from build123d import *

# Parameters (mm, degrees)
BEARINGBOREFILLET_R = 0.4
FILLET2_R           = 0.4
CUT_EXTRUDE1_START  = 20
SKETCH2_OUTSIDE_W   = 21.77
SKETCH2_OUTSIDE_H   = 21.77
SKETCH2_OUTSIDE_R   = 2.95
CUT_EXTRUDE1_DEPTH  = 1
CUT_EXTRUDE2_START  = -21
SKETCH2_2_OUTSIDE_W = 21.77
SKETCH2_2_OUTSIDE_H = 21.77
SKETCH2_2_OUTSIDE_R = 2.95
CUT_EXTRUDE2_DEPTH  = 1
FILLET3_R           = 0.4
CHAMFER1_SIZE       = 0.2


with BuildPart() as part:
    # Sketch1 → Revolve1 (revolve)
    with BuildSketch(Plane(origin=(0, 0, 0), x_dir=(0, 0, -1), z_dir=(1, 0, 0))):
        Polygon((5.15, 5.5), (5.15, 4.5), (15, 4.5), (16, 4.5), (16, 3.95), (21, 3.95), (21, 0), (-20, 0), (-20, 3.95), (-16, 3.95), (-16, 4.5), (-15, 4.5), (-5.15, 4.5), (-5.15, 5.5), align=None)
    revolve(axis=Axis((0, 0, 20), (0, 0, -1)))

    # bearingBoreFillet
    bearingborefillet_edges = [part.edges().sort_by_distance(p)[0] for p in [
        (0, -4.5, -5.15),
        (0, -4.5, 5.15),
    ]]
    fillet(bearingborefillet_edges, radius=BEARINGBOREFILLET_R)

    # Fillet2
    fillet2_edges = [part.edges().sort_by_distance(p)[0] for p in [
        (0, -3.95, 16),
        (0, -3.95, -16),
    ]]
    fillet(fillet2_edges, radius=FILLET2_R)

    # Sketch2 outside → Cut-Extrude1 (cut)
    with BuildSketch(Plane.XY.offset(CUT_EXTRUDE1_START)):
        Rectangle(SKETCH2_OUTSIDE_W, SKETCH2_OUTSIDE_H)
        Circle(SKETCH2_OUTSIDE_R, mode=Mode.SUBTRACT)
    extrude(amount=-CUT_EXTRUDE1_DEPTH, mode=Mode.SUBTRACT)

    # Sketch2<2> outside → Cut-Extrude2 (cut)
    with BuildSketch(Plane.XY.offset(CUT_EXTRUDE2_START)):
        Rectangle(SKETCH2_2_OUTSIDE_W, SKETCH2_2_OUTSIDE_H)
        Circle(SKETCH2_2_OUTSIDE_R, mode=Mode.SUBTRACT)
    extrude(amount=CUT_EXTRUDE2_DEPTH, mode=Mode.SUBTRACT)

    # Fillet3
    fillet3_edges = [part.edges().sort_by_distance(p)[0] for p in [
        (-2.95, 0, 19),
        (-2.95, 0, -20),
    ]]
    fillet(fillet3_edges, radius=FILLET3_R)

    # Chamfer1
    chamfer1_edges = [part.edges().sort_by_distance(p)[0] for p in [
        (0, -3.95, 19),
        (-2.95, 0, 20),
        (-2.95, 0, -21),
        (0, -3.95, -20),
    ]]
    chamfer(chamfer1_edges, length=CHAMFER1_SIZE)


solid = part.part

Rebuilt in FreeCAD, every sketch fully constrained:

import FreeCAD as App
import Part
import Sketcher
from FreeCAD import Vector


def edges_at(feature, points):
    """Names of the edges that pass closest to the given points."""
    edges = feature.Shape.Edges
    near = lambda p: min(range(len(edges)), key=lambda i: edges[i].distToShape(Part.Vertex(*p))[0])
    return sorted({f"Edge{near(p) + 1}" for p in points})

doc = App.newDocument("Part")
body = doc.addObject("PartDesign::Body", "Body")

# Sketch on YZ plane
sketch1 = doc.addObject("Sketcher::SketchObject", "Sketch")
body.addObject(sketch1)
sketch1.AttachmentSupport = (doc.YZ_Plane, [""])
sketch1.MapMode = "FlatFace"
sketch1.addGeometry(Part.LineSegment(Vector(4.5, -5.2, 0), Vector(5.5, -5.2, 0)), False)
sketch1.addGeometry(Part.LineSegment(Vector(5.5, -5.2, 0), Vector(5.5, 5.2, 0)), False)
sketch1.addGeometry(Part.LineSegment(Vector(5.5, 5.2, 0), Vector(4.5, 5.2, 0)), False)
sketch1.addGeometry(Part.LineSegment(Vector(4.5, 5.2, 0), Vector(4.5, 16, 0)), False)
sketch1.addGeometry(Part.LineSegment(Vector(4.5, 16, 0), Vector(4, 16, 0)), False)
sketch1.addGeometry(Part.LineSegment(Vector(4, 16, 0), Vector(4, 20, 0)), False)
sketch1.addGeometry(Part.LineSegment(Vector(4, 20, 0), Vector(0, 20, 0)), False)
sketch1.addGeometry(Part.LineSegment(Vector(0, 20, 0), Vector(0, -21, 0)), False)
sketch1.addGeometry(Part.LineSegment(Vector(0, -21, 0), Vector(4, -21, 0)), False)
sketch1.addGeometry(Part.LineSegment(Vector(4, -21, 0), Vector(4, -16, 0)), False)
sketch1.addGeometry(Part.LineSegment(Vector(4, -16, 0), Vector(4.5, -16, 0)), False)
sketch1.addGeometry(Part.LineSegment(Vector(4.5, -16, 0), Vector(4.5, -5.2, 0)), False)
sketch1.addConstraint(Sketcher.Constraint("Coincident", 0, 2, 1, 1))
sketch1.addConstraint(Sketcher.Constraint("Coincident", 1, 2, 2, 1))
sketch1.addConstraint(Sketcher.Constraint("Coincident", 2, 2, 3, 1))
sketch1.addConstraint(Sketcher.Constraint("Coincident", 3, 2, 4, 1))
sketch1.addConstraint(Sketcher.Constraint("Coincident", 4, 2, 5, 1))
sketch1.addConstraint(Sketcher.Constraint("Coincident", 5, 2, 6, 1))
sketch1.addConstraint(Sketcher.Constraint("Coincident", 6, 2, 7, 1))
sketch1.addConstraint(Sketcher.Constraint("Coincident", 7, 2, 8, 1))
sketch1.addConstraint(Sketcher.Constraint("Coincident", 8, 2, 9, 1))
sketch1.addConstraint(Sketcher.Constraint("Coincident", 9, 2, 10, 1))
sketch1.addConstraint(Sketcher.Constraint("Coincident", 10, 2, 11, 1))
sketch1.addConstraint(Sketcher.Constraint("Coincident", 11, 2, 0, 1))
sketch1.addConstraint(Sketcher.Constraint("Horizontal", 0))
sketch1.addConstraint(Sketcher.Constraint("Vertical", 1))
sketch1.addConstraint(Sketcher.Constraint("Horizontal", 2))
sketch1.addConstraint(Sketcher.Constraint("Vertical", 3))
sketch1.addConstraint(Sketcher.Constraint("Horizontal", 4))
sketch1.addConstraint(Sketcher.Constraint("Vertical", 5))
sketch1.addConstraint(Sketcher.Constraint("Horizontal", 6))
sketch1.addConstraint(Sketcher.Constraint("Vertical", 7))
sketch1.addConstraint(Sketcher.Constraint("Horizontal", 8))
sketch1.addConstraint(Sketcher.Constraint("Vertical", 9))
sketch1.addConstraint(Sketcher.Constraint("Horizontal", 10))
sketch1.addConstraint(Sketcher.Constraint("Vertical", 11))
sketch1.addConstraint(Sketcher.Constraint("Symmetric", 4, 2, 9, 2, -1))
sketch1.addConstraint(Sketcher.Constraint("Symmetric", 2, 2, 11, 2, -1))
sketch1.addConstraint(Sketcher.Constraint("PointOnObject", 6, 2, -2))
sketch1.addConstraint(Sketcher.Constraint("DistanceX", 0, 1, 0, 2, 1.0))
sketch1.addConstraint(Sketcher.Constraint("DistanceY", 5, 1, 5, 2, 4.0))
sketch1.addConstraint(Sketcher.Constraint("DistanceY", 7, 2, 7, 1, 41.0))
sketch1.addConstraint(Sketcher.Constraint("DistanceY", 9, 1, 9, 2, 5.0))
sketch1.addConstraint(Sketcher.Constraint("DistanceY", 1, 1, 1, 2, 10.3))
sketch1.addConstraint(Sketcher.Constraint("DistanceX", 4, 2, 4, 1, 0.55))
sketch1.addConstraint(Sketcher.Constraint("DistanceX", 6, 2, 6, 1, 3.95))
revolution = doc.addObject("PartDesign::Revolution", "Revolution")
body.addObject(revolution)
revolution.Profile = sketch1
revolution.ReferenceAxis = (sketch1, ["V_Axis"])
revolution.Angle = 360
doc.recompute()

fillet = doc.addObject("PartDesign::Fillet", "Fillet")
body.addObject(fillet)
fillet.Base = (revolution, edges_at(revolution, [(0, -4.5, -5.15), (0, -4.5, 5.15)]))
fillet.Radius = 0.4
doc.recompute()

fillet2 = doc.addObject("PartDesign::Fillet", "Fillet001")
body.addObject(fillet2)
fillet2.Base = (fillet, edges_at(fillet, [(0, -3.95, 16), (0, -3.95, -16)]))
fillet2.Radius = 0.4

# Sketch on XY plane
sketch2 = doc.addObject("Sketcher::SketchObject", "Sketch001")
body.addObject(sketch2)
sketch2.AttachmentSupport = (doc.XY_Plane, [""])
sketch2.MapMode = "FlatFace"
sketch2.AttachmentOffset = App.Placement(Vector(0, 0, 20), App.Rotation())
sketch2.addGeometry(Part.LineSegment(Vector(-10.9, 10.9, 0), Vector(-10.9, -10.9, 0)), False)
sketch2.addGeometry(Part.LineSegment(Vector(-10.9, -10.9, 0), Vector(10.9, -10.9, 0)), False)
sketch2.addGeometry(Part.LineSegment(Vector(10.9, -10.9, 0), Vector(10.9, 10.9, 0)), False)
sketch2.addGeometry(Part.LineSegment(Vector(10.9, 10.9, 0), Vector(-10.9, 10.9, 0)), False)
sketch2.addGeometry(Part.Circle(Vector(0, 0, 0), Vector(0, 0, 1), 3), False)
sketch2.addConstraint(Sketcher.Constraint("Coincident", 0, 2, 1, 1))
sketch2.addConstraint(Sketcher.Constraint("Coincident", 1, 2, 2, 1))
sketch2.addConstraint(Sketcher.Constraint("Coincident", 2, 2, 3, 1))
sketch2.addConstraint(Sketcher.Constraint("Coincident", 3, 2, 0, 1))
sketch2.addConstraint(Sketcher.Constraint("Vertical", 0))
sketch2.addConstraint(Sketcher.Constraint("Horizontal", 1))
sketch2.addConstraint(Sketcher.Constraint("Vertical", 2))
sketch2.addConstraint(Sketcher.Constraint("Horizontal", 3))
sketch2.addConstraint(Sketcher.Constraint("Coincident", 4, 3, -1, 1))
sketch2.addConstraint(Sketcher.Constraint("Symmetric", 0, 2, 2, 2, -1, 1))
sketch2.addConstraint(Sketcher.Constraint("Equal", 3, 0))
sketch2.addConstraint(Sketcher.Constraint("Diameter", 4, 5.9))
sketch2.addConstraint(Sketcher.Constraint("DistanceX", 1, 1, 1, 2, 21.77))
pocket1 = doc.addObject("PartDesign::Pocket", "Pocket")
body.addObject(pocket1)
pocket1.Profile = sketch2
pocket1.Length = 1

# Sketch on XY plane
sketch3 = doc.addObject("Sketcher::SketchObject", "Sketch002")
body.addObject(sketch3)
sketch3.AttachmentSupport = (doc.XY_Plane, [""])
sketch3.MapMode = "FlatFace"
sketch3.AttachmentOffset = App.Placement(Vector(0, 0, -21), App.Rotation())
sketch3.addGeometry(Part.LineSegment(Vector(-10.9, 10.9, 0), Vector(-10.9, -10.9, 0)), False)
sketch3.addGeometry(Part.LineSegment(Vector(-10.9, -10.9, 0), Vector(10.9, -10.9, 0)), False)
sketch3.addGeometry(Part.LineSegment(Vector(10.9, -10.9, 0), Vector(10.9, 10.9, 0)), False)
sketch3.addGeometry(Part.LineSegment(Vector(10.9, 10.9, 0), Vector(-10.9, 10.9, 0)), False)
sketch3.addGeometry(Part.Circle(Vector(0, 0, 0), Vector(0, 0, 1), 3), False)
sketch3.addConstraint(Sketcher.Constraint("Coincident", 0, 2, 1, 1))
sketch3.addConstraint(Sketcher.Constraint("Coincident", 1, 2, 2, 1))
sketch3.addConstraint(Sketcher.Constraint("Coincident", 2, 2, 3, 1))
sketch3.addConstraint(Sketcher.Constraint("Coincident", 3, 2, 0, 1))
sketch3.addConstraint(Sketcher.Constraint("Vertical", 0))
sketch3.addConstraint(Sketcher.Constraint("Horizontal", 1))
sketch3.addConstraint(Sketcher.Constraint("Vertical", 2))
sketch3.addConstraint(Sketcher.Constraint("Horizontal", 3))
sketch3.addConstraint(Sketcher.Constraint("Coincident", 4, 3, -1, 1))
sketch3.addConstraint(Sketcher.Constraint("Symmetric", 0, 2, 2, 2, -1, 1))
sketch3.addConstraint(Sketcher.Constraint("Equal", 3, 0))
sketch3.addConstraint(Sketcher.Constraint("Diameter", 4, 5.9))
sketch3.addConstraint(Sketcher.Constraint("DistanceX", 1, 1, 1, 2, 21.77))
pocket2 = doc.addObject("PartDesign::Pocket", "Pocket001")
body.addObject(pocket2)
pocket2.Profile = sketch3
pocket2.Length = 1
pocket2.Reversed = True
doc.recompute()

fillet3 = doc.addObject("PartDesign::Fillet", "Fillet002")
body.addObject(fillet3)
fillet3.Base = (pocket2, edges_at(pocket2, [(-2.95, 0, 19), (-2.95, 0, -20)]))
fillet3.Radius = 0.4
doc.recompute()

chamfer = doc.addObject("PartDesign::Chamfer", "Chamfer")
body.addObject(chamfer)
chamfer.Base = (fillet3, edges_at(fillet3, [
    (0, -3.95, 19),
    (-2.95, 0, 20),
    (-2.95, 0, -21),
    (0, -3.95, -20),
]))
chamfer.Size = 0.2

doc.recompute()
